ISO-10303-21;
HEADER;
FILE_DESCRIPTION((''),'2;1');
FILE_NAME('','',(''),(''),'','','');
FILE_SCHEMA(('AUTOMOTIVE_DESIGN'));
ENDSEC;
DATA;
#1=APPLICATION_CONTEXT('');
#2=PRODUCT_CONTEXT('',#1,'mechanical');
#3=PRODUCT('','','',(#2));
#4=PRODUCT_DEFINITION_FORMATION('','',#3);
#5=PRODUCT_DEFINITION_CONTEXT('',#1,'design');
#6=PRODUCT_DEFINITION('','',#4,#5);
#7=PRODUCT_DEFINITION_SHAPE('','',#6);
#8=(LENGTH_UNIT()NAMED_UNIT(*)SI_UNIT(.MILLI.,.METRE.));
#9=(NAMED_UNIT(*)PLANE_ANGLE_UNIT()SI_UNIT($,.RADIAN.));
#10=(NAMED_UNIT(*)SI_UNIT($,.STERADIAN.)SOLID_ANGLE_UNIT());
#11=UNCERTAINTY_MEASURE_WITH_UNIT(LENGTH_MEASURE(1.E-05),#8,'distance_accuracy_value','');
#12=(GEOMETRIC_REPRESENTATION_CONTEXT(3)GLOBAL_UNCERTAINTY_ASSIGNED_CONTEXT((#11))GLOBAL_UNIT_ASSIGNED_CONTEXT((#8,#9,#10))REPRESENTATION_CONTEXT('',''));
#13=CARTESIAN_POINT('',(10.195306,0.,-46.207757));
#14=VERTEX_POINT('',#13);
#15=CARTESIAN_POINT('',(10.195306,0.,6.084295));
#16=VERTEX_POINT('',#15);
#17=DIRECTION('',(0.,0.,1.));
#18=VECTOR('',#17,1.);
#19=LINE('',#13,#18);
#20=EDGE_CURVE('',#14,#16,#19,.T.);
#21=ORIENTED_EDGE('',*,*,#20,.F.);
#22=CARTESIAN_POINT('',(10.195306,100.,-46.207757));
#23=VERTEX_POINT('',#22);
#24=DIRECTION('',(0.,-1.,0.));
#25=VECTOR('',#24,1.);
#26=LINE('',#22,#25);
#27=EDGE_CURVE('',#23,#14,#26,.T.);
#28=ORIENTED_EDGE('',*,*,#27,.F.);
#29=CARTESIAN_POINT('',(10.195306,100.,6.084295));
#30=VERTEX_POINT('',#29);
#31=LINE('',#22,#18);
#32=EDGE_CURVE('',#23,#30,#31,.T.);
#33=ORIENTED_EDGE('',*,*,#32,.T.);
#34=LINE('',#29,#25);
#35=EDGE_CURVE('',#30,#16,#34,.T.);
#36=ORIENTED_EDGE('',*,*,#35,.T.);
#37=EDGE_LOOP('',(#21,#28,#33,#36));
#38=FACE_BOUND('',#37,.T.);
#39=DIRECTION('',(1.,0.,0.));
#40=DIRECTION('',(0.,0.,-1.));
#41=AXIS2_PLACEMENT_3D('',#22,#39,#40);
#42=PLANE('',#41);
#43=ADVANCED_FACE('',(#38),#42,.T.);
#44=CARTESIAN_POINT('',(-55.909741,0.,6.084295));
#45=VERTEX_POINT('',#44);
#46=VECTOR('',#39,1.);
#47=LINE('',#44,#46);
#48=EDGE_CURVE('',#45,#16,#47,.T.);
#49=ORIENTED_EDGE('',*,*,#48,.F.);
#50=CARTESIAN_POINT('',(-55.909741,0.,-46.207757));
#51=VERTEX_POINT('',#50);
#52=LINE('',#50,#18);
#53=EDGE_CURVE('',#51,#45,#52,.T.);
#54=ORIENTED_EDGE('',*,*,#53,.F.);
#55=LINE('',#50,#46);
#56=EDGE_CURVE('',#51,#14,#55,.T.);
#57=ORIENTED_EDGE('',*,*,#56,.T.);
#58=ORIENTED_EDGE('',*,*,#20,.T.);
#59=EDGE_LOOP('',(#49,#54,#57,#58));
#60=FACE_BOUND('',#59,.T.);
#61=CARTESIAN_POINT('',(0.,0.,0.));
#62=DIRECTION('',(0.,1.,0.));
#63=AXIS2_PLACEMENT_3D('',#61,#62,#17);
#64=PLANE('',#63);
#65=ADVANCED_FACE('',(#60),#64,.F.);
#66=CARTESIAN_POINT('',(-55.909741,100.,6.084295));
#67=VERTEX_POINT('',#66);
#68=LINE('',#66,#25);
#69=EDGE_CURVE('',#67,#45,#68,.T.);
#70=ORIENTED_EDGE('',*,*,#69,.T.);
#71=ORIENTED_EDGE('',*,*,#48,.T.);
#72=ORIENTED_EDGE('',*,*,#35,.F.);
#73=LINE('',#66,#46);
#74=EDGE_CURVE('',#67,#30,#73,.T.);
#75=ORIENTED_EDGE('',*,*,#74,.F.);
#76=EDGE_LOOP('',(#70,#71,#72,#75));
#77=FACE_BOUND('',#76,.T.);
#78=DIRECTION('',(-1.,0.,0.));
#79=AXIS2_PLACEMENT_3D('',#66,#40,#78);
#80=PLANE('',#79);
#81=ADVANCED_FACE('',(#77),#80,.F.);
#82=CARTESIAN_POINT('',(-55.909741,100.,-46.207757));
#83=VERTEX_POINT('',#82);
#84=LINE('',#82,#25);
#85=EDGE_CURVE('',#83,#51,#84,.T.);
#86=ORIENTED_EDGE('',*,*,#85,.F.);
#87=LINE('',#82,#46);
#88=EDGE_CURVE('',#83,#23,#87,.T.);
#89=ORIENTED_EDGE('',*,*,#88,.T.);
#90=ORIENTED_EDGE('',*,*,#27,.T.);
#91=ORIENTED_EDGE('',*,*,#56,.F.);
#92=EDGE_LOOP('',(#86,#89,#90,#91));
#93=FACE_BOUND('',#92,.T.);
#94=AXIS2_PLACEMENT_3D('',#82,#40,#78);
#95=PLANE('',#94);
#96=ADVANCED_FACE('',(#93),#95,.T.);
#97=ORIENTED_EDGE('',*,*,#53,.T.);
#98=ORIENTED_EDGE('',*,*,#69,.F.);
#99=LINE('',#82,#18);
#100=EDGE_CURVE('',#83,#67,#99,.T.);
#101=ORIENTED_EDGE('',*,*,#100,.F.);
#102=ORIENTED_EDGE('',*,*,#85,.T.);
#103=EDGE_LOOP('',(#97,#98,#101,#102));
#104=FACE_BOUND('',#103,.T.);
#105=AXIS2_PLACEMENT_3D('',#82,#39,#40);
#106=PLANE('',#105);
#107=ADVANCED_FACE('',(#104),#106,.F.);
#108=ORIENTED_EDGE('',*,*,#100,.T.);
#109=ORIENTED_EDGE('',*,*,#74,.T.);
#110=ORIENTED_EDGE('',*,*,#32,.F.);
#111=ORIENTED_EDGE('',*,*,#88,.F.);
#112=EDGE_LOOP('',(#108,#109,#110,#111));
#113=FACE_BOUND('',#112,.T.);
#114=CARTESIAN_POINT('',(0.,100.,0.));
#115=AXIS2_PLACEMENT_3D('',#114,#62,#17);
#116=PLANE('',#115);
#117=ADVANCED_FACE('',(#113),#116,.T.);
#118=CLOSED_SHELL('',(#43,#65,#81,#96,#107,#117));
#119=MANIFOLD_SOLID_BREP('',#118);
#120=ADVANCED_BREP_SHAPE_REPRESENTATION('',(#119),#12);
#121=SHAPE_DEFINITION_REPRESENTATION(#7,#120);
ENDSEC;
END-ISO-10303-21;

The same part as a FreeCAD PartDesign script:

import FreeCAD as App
import Part
import Sketcher

V = App.Vector
Q = App.Units.Quantity

doc = App.newDocument("Part")
body = doc.addObject("PartDesign::Body", "Body")

sketch1 = body.newObject("Sketcher::SketchObject", "Sketch")
sketch1.AttachmentSupport = (doc.getObject("XZ_Plane"), [""])
sketch1.MapMode = "FlatFace"
sketch1.addGeometry(Part.LineSegment(V(-56, -46, 0), V(-56, 6, 0)), False)
sketch1.addGeometry(Part.LineSegment(V(-56, 6, 0), V(10, 6, 0)), False)
sketch1.addGeometry(Part.LineSegment(V(10, 6, 0), V(10, -46, 0)), False)
sketch1.addGeometry(Part.LineSegment(V(10, -46, 0), V(-56, -46, 0)), False)
sketch1.addConstraint(Sketcher.Constraint("Coincident", 0, 2, 1, 1))
sketch1.addConstraint(Sketcher.Constraint("Coincident", 1, 2, 2, 1))
sketch1.addConstraint(Sketcher.Constraint("Coincident", 2, 2, 3, 1))
sketch1.addConstraint(Sketcher.Constraint("Coincident", 3, 2, 0, 1))
sketch1.addConstraint(Sketcher.Constraint("Vertical", 0))
sketch1.addConstraint(Sketcher.Constraint("Horizontal", 1))
sketch1.addConstraint(Sketcher.Constraint("Vertical", 2))
sketch1.addConstraint(Sketcher.Constraint("Horizontal", 3))
sketch1.addConstraint(Sketcher.Constraint("DistanceY", 0, 1, 0, 2, Q("52.292052 mm")))
sketch1.addConstraint(Sketcher.Constraint("DistanceX", 1, 1, 1, 2, Q("66.105047 mm")))
sketch1.addConstraint(Sketcher.Constraint("DistanceX", 0, 2, -1, 1, Q("55.909741 mm")))
sketch1.addConstraint(Sketcher.Constraint("DistanceY", -1, 1, 0, 2, Q("6.084295 mm")))
pad1 = body.newObject("PartDesign::Pad", "Pad")
pad1.Profile = sketch1
pad1.Length = 100
pad1.Reversed = True

doc.recompute()
